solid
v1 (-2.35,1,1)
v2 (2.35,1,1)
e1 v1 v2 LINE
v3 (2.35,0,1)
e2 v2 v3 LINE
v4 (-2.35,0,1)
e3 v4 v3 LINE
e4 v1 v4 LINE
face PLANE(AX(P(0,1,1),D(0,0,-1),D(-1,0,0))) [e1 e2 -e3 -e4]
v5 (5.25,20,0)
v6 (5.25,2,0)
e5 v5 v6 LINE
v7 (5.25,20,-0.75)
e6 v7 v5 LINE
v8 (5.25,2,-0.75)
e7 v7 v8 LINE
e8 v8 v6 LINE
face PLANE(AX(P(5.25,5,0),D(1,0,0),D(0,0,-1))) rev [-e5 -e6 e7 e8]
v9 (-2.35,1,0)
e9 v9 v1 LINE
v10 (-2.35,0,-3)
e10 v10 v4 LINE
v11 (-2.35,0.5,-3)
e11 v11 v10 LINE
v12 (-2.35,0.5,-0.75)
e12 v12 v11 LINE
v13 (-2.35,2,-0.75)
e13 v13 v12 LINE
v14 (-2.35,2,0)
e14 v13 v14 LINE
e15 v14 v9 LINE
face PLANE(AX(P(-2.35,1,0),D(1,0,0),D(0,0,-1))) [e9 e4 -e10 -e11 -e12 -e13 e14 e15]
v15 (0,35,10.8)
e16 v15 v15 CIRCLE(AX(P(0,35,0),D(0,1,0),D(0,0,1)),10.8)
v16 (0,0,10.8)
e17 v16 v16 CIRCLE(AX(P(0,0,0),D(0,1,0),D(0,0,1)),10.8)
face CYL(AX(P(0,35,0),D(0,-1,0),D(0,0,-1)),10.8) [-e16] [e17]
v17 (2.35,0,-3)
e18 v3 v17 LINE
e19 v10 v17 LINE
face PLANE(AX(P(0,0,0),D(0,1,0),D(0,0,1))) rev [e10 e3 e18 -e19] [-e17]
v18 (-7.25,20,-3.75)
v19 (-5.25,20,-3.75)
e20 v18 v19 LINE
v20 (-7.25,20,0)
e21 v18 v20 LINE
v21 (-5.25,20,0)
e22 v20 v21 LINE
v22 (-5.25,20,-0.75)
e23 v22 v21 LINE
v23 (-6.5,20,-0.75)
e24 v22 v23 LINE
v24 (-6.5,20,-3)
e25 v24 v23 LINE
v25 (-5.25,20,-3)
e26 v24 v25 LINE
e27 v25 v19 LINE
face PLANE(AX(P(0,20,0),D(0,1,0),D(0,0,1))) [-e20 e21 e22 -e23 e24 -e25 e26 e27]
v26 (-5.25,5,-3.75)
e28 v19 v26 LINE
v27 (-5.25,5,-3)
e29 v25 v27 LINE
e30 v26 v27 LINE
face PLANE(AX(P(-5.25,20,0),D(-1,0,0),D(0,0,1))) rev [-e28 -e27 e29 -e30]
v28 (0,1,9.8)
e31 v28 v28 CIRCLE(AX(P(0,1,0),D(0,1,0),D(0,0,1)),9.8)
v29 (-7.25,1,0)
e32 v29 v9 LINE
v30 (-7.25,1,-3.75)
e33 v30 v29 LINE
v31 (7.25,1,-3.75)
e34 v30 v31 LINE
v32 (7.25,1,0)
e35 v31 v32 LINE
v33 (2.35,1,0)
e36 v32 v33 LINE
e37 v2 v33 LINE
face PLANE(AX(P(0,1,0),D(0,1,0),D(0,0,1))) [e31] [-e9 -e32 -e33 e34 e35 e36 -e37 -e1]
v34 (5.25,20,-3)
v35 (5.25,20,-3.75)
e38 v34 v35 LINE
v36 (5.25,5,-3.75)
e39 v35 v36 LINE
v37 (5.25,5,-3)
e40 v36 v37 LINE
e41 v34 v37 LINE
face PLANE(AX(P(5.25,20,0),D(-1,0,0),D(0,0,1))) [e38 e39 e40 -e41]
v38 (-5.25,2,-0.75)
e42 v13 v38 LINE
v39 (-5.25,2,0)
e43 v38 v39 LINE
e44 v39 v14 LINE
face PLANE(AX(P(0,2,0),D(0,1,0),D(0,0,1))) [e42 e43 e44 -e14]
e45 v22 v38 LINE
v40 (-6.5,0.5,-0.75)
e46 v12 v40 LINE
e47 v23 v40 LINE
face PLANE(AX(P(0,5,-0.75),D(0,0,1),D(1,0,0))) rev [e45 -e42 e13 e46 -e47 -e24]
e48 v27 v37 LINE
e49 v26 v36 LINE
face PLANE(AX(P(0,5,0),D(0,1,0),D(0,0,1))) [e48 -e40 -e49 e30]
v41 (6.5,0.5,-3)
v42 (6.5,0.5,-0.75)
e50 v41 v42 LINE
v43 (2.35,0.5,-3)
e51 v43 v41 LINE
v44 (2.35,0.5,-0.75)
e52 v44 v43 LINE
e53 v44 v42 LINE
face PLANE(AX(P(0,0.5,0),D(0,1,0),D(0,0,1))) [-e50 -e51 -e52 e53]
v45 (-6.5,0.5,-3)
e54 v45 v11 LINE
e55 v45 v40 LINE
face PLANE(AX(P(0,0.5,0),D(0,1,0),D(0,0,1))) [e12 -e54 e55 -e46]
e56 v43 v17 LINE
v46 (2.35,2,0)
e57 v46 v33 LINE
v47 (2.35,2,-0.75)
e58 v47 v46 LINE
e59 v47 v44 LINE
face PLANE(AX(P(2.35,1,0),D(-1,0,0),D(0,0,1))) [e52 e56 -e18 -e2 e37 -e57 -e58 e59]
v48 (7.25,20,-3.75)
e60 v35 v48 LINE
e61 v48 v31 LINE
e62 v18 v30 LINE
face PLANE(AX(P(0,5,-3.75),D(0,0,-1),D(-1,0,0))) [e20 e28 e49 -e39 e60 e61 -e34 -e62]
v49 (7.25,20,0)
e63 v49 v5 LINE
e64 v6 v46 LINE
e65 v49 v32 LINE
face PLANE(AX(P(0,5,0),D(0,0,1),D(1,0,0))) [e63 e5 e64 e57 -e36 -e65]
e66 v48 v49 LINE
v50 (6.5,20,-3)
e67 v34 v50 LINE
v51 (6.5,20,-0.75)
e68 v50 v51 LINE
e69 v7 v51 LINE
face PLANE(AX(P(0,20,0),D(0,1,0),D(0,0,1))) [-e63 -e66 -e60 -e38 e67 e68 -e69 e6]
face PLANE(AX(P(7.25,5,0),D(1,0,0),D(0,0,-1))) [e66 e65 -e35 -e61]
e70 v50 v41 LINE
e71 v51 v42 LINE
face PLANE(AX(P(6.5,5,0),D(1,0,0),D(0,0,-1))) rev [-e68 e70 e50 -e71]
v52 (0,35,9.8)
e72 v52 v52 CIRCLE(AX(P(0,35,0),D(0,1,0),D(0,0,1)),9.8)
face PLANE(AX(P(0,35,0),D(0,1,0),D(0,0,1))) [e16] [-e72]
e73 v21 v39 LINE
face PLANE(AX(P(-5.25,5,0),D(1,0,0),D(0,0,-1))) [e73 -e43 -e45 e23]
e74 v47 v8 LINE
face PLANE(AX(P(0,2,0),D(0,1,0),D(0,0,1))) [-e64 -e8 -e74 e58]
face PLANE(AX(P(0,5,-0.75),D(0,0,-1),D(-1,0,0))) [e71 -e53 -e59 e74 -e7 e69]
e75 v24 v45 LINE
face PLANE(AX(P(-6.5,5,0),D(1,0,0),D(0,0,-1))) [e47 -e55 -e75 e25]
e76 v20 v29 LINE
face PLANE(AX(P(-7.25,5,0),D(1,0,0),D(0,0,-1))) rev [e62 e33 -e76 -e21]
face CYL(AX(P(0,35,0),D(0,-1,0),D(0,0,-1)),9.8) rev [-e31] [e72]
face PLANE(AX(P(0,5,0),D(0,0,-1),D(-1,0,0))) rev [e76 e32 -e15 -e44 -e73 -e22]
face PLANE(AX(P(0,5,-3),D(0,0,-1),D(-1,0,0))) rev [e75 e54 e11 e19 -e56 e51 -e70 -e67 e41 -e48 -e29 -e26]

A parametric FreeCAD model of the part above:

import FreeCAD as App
import Part
import Sketcher

V = App.Vector

doc = App.newDocument("Part")
params = doc.addObject("Spreadsheet::Sheet", "Params")
for row, (alias, value) in enumerate([
    ("sketch1_diameter", "21.6 mm"),
    ("sketch1_diameter2", "19.6 mm"),
    ("pad1_length", "35 mm"),
    ("sketch2_diameter", "19.6 mm"),
    ("sketch2_height", "1 mm"),
    ("sketch2_width", "4.9 mm"),
    ("sketch2_width2", "14.5 mm"),
    ("sketch2_height2", "3.75 mm"),
    ("pad2_length", "1 mm"),
    ("sketch3_width", "13 mm"),
    ("sketch3_width2", "2 mm"),
    ("sketch3_width3", "14.5 mm"),
    ("sketch3_height", "0.75 mm"),
    ("pad3_length", "5 mm"),
    ("sketch4_width", "2.9 mm"),
    ("sketch4_height", "0.75 mm"),
    ("pad4_length", "2 mm"),
    ("sketch5_width", "4.15 mm"),
    ("sketch5_height", "2.25 mm"),
    ("pad5_length", "0.5 mm"),
    ("sketch6_width", "2 mm"),
    ("sketch6_width2", "1.25 mm"),
    ("sketch6_height", "0.75 mm"),
    ("pad6_length", "20 mm"),
], start=1):
    params.set(f"A{row}", alias)
    params.set(f"B{row}", "=" + value)
    params.setAlias(f"B{row}", alias)

body = doc.addObject("PartDesign::Body", "Body")

sketch1 = body.newObject("Sketcher::SketchObject", "Sketch")
sketch1.AttachmentSupport = (doc.getObject("XZ_Plane"), [""])
sketch1.MapMode = "FlatFace"
sketch1.addGeometry([
    Part.Circle(V(0, 0, 0), V(0, 0, 1), 11),
    Part.Circle(V(0, 0, 0), V(0, 0, 1), 10),
], False)
sketch1.addConstraint([
    Sketcher.Constraint("Coincident", 0, 3, -1, 1),
    Sketcher.Constraint("Coincident", 1, 3, -1, 1),
    Sketcher.Constraint("Diameter", 0, 21.6),
    Sketcher.Constraint("Diameter", 1, 19.6),
])
sketch1.setExpression("Constraints[2]", "Params.sketch1_diameter")
sketch1.setExpression("Constraints[3]", "Params.sketch1_diameter2")
pad1 = body.newObject("PartDesign::Pad", "Pad")
pad1.Profile = sketch1
pad1.setExpression("Length", "Params.pad1_length")
pad1.Reversed = True

sketch2 = body.newObject("Sketcher::SketchObject", "Sketch001")
sketch2.AttachmentSupport = (doc.getObject("XZ_Plane"), [""])
sketch2.MapMode = "FlatFace"
sketch2.addGeometry([
    Part.Circle(V(0, 0, 0), V(0, 0, 1), 9.8),
    Part.LineSegment(V(-2.4, 1, 0), V(-2.4, 0, 0)),
    Part.LineSegment(V(-2.4, 0, 0), V(-7.2, 0, 0)),
    Part.LineSegment(V(-7.2, 0, 0), V(-7.2, -3.8, 0)),
    Part.LineSegment(V(-7.2, -3.8, 0), V(7.2, -3.8, 0)),
    Part.LineSegment(V(7.2, -3.8, 0), V(7.2, 0, 0)),
    Part.LineSegment(V(7.2, 0, 0), V(2.4, 0, 0)),
    Part.LineSegment(V(2.4, 0, 0), V(2.4, 1, 0)),
    Part.LineSegment(V(2.4, 1, 0), V(-2.4, 1, 0)),
], False)
sketch2.addConstraint([
    Sketcher.Constraint("Coincident", 1, 2, 2, 1),
    Sketcher.Constraint("Coincident", 2, 2, 3, 1),
    Sketcher.Constraint("Coincident", 3, 2, 4, 1),
    Sketcher.Constraint("Coincident", 4, 2, 5, 1),
    Sketcher.Constraint("Coincident", 5, 2, 6, 1),
    Sketcher.Constraint("Coincident", 6, 2, 7, 1),
    Sketcher.Constraint("Coincident", 7, 2, 8, 1),
    Sketcher.Constraint("Coincident", 8, 2, 1, 1),
    Sketcher.Constraint("Vertical", 1),
    Sketcher.Constraint("Horizontal", 2),
    Sketcher.Constraint("Vertical", 3),
    Sketcher.Constraint("Horizontal", 4),
    Sketcher.Constraint("Vertical", 5),
    Sketcher.Constraint("Horizontal", 6),
    Sketcher.Constraint("Vertical", 7),
    Sketcher.Constraint("Horizontal", 8),
    Sketcher.Constraint("Coincident", 0, 3, -1, 1),
    Sketcher.Constraint("Symmetric", 2, 2, 5, 2, -1, 1),
    Sketcher.Constraint("Symmetric", 1, 2, 6, 2, -2),
    Sketcher.Constraint("Diameter", 0, 19.6),
    Sketcher.Constraint("DistanceY", 1, 2, 1, 1, 1.0),
    Sketcher.Constraint("DistanceX", 2, 2, 2, 1, 4.9),
    Sketcher.Constraint("DistanceX", 4, 1, 4, 2, 14.5),
    Sketcher.Constraint("DistanceY", 3, 2, 3, 1, 3.75),
])
sketch2.setExpression("Constraints[19]", "Params.sketch2_diameter")
sketch2.setExpression("Constraints[20]", "Params.sketch2_height")
sketch2.setExpression("Constraints[21]", "Params.sketch2_width")
sketch2.setExpression("Constraints[22]", "Params.sketch2_width2")
sketch2.setExpression("Constraints[23]", "Params.sketch2_height2")
pad2 = body.newObject("PartDesign::Pad", "Pad001")
pad2.Profile = sketch2
pad2.setExpression("Length", "Params.pad2_length")
pad2.Reversed = True

sketch3 = body.newObject("Sketcher::SketchObject", "Sketch002")
sketch3.AttachmentSupport = (doc.getObject("XZ_Plane"), [""])
sketch3.MapMode = "FlatFace"
sketch3.addGeometry([
    Part.LineSegment(V(-5.2, 0, 0), V(-5.2, -0.8, 0)),
    Part.LineSegment(V(-5.2, -0.8, 0), V(-6.5, -0.8, 0)),
    Part.LineSegment(V(-6.5, -0.8, 0), V(-6.5, -3, 0)),
    Part.LineSegment(V(-6.5, -3, 0), V(6.5, -3, 0)),
    Part.LineSegment(V(6.5, -3, 0), V(6.5, -0.8, 0)),
    Part.LineSegment(V(6.5, -0.8, 0), V(5.2, -0.8, 0)),
    Part.LineSegment(V(5.2, -0.8, 0), V(5.2, 0, 0)),
    Part.LineSegment(V(5.2, 0, 0), V(7.2, 0, 0)),
    Part.LineSegment(V(7.2, 0, 0), V(7.2, -3.8, 0)),
    Part.LineSegment(V(7.2, -3.8, 0), V(-7.2, -3.8, 0)),
    Part.LineSegment(V(-7.2, -3.8, 0), V(-7.2, 0, 0)),
    Part.LineSegment(V(-7.2, 0, 0), V(-5.2, 0, 0)),
], False)
sketch3.addConstraint([
    Sketcher.Constraint("Coincident", 0, 2, 1, 1),
    Sketcher.Constraint("Coincident", 1, 2, 2, 1),
    Sketcher.Constraint("Coincident", 2, 2, 3, 1),
    Sketcher.Constraint("Coincident", 3, 2, 4, 1),
    Sketcher.Constraint("Coincident", 4, 2, 5, 1),
    Sketcher.Constraint("Coincident", 5, 2, 6, 1),
    Sketcher.Constraint("Coincident", 6, 2, 7, 1),
    Sketcher.Constraint("Coincident", 7, 2, 8, 1),
    Sketcher.Constraint("Coincident", 8, 2, 9, 1),
    Sketcher.Constraint("Coincident", 9, 2, 10, 1),
    Sketcher.Constraint("Coincident", 10, 2, 11, 1),
    Sketcher.Constraint("Coincident", 11, 2, 0, 1),
    Sketcher.Constraint("Vertical", 0),
    Sketcher.Constraint("Horizontal", 1),
    Sketcher.Constraint("Vertical", 2),
    Sketcher.Constraint("Horizontal", 3),
    Sketcher.Constraint("Vertical", 4),
    Sketcher.Constraint("Horizontal", 5),
    Sketcher.Constraint("Vertical", 6),
    Sketcher.Constraint("Horizontal", 7),
    Sketcher.Constraint("Vertical", 8),
    Sketcher.Constraint("Horizontal", 9),
    Sketcher.Constraint("Vertical", 10),
    Sketcher.Constraint("Horizontal", 11),
    Sketcher.Constraint("Symmetric", 7, 2, 10, 2, -1, 1),
    Sketcher.Constraint("Symmetric", 1, 2, 4, 2, -2),
    Sketcher.Constraint("Symmetric", 6, 2, 11, 2, -2),
    Sketcher.Constraint("DistanceX", 3, 1, 3, 2, 13.0),
    Sketcher.Constraint("DistanceX", 7, 1, 7, 2, 2.0),
    Sketcher.Constraint("DistanceX", 9, 2, 9, 1, 14.5),
    Sketcher.Constraint("DistanceY", 2, 2, -1, 1, 3.0),
    Sketcher.Constraint("DistanceY", 8, 2, 4, 2, 3.0),
    Sketcher.Constraint("DistanceY", 0, 2, 0, 1, 0.75),
])
sketch3.setExpression("Constraints[27]", "Params.sketch3_width")
sketch3.setExpression("Constraints[28]", "Params.sketch3_width2")
sketch3.setExpression("Constraints[29]", "Params.sketch3_width3")
sketch3.setExpression("Constraints[32]", "Params.sketch3_height")
pad3 = body.newObject("PartDesign::Pad", "Pad002")
pad3.Profile = sketch3
pad3.setExpression("Length", "Params.pad3_length")
pad3.Reversed = True

sketch4 = body.newObject("Sketcher::SketchObject", "Sketch003")
sketch4.AttachmentSupport = (doc.getObject("XZ_Plane"), [""])
sketch4.MapMode = "FlatFace"
sketch4.addGeometry([
    Part.LineSegment(V(-5.2, -0.8, 0), V(-5.2, 0, 0)),
    Part.LineSegment(V(-5.2, 0, 0), V(-2.4, 0, 0)),
    Part.LineSegment(V(-2.4, 0, 0), V(-2.4, -0.8, 0)),
    Part.LineSegment(V(-2.4, -0.8, 0), V(-5.2, -0.8, 0)),
    Part.LineSegment(V(2.4, -0.8, 0), V(2.4, 0, 0)),
    Part.LineSegment(V(2.4, 0, 0), V(5.2, 0, 0)),
    Part.LineSegment(V(5.2, 0, 0), V(5.2, -0.8, 0)),
    Part.LineSegment(V(5.2, -0.8, 0), V(2.4, -0.8, 0)),
], False)
sketch4.addConstraint([
    Sketcher.Constraint("Coincident", 0, 2, 1, 1),
    Sketcher.Constraint("Coincident", 1, 2, 2, 1),
    Sketcher.Constraint("Coincident", 2, 2, 3, 1),
    Sketcher.Constraint("Coincident", 3, 2, 0, 1),
    Sketcher.Constraint("Coincident", 4, 2, 5, 1),
    Sketcher.Constraint("Coincident", 5, 2, 6, 1),
    Sketcher.Constraint("Coincident", 6, 2, 7, 1),
    Sketcher.Constraint("Coincident", 7, 2, 4, 1),
    Sketcher.Constraint("Vertical", 0),
    Sketcher.Constraint("Horizontal", 1),
    Sketcher.Constraint("Vertical", 2),
    Sketcher.Constraint("Horizontal", 3),
    Sketcher.Constraint("Vertical", 4),
    Sketcher.Constraint("Horizontal", 5),
    Sketcher.Constraint("Vertical", 6),
    Sketcher.Constraint("Horizontal", 7),
    Sketcher.Constraint("Symmetric", 1, 2, 4, 2, -1, 1),
    Sketcher.Constraint("Symmetric", 0, 2, 5, 2, -2),
    Sketcher.Constraint("Horizontal", 3, 2, 6, 2),
    Sketcher.Constraint("DistanceX", 1, 1, 1, 2, 2.9),
    Sketcher.Constraint("DistanceY", 0, 1, 0, 2, 0.75),
    Sketcher.Constraint("DistanceX", 1, 2, 4, 2, 4.7),
])
sketch4.setExpression("Constraints[19]", "Params.sketch4_width")
sketch4.setExpression("Constraints[20]", "Params.sketch4_height")
pad4 = body.newObject("PartDesign::Pad", "Pad003")
pad4.Profile = sketch4
pad4.setExpression("Length", "Params.pad4_length")
pad4.Reversed = True

sketch5 = body.newObject("Sketcher::SketchObject", "Sketch004")
sketch5.AttachmentSupport = (doc.getObject("XZ_Plane"), [""])
sketch5.MapMode = "FlatFace"
sketch5.addGeometry([
    Part.LineSegment(V(-6.5, -0.8, 0), V(-2.4, -0.8, 0)),
    Part.LineSegment(V(-2.4, -0.8, 0), V(-2.4, -3, 0)),
    Part.LineSegment(V(-2.4, -3, 0), V(-6.5, -3, 0)),
    Part.LineSegment(V(-6.5, -3, 0), V(-6.5, -0.8, 0)),
    Part.LineSegment(V(2.4, -3, 0), V(2.4, -0.8, 0)),
    Part.LineSegment(V(2.4, -0.8, 0), V(6.5, -0.8, 0)),
    Part.LineSegment(V(6.5, -0.8, 0), V(6.5, -3, 0)),
    Part.LineSegment(V(6.5, -3, 0), V(2.4, -3, 0)),
], False)
sketch5.addConstraint([
    Sketcher.Constraint("Coincident", 0, 2, 1, 1),
    Sketcher.Constraint("Coincident", 1, 2, 2, 1),
    Sketcher.Constraint("Coincident", 2, 2, 3, 1),
    Sketcher.Constraint("Coincident", 3, 2, 0, 1),
    Sketcher.Constraint("Coincident", 4, 2, 5, 1),
    Sketcher.Constraint("Coincident", 5, 2, 6, 1),
    Sketcher.Constraint("Coincident", 6, 2, 7, 1),
    Sketcher.Constraint("Coincident", 7, 2, 4, 1),
    Sketcher.Constraint("Horizontal", 0),
    Sketcher.Constraint("Vertical", 1),
    Sketcher.Constraint("Horizontal", 2),
    Sketcher.Constraint("Vertical", 3),
    Sketcher.Constraint("Vertical", 4),
    Sketcher.Constraint("Horizontal", 5),
    Sketcher.Constraint("Vertical", 6),
    Sketcher.Constraint("Horizontal", 7),
    Sketcher.Constraint("Symmetric", 0, 2, 4, 2, -2),
    Sketcher.Constraint("Symmetric", 2, 2, 6, 2, -2),
    Sketcher.Constraint("DistanceY", 1, 2, -1, 1, 3.0),
    Sketcher.Constraint("DistanceX", 3, 2, 5, 2, 13.0),
    Sketcher.Constraint("DistanceX", 0, 1, 0, 2, 4.15),
    Sketcher.Constraint("DistanceY", 1, 2, 1, 1, 2.25),
])
sketch5.setExpression("Constraints[20]", "Params.sketch5_width")
sketch5.setExpression("Constraints[21]", "Params.sketch5_height")
pad5 = body.newObject("PartDesign::Pad", "Pad004")
pad5.Profile = sketch5
pad5.setExpression("Length", "Params.pad5_length")
pad5.Reversed = True

sketch6 = body.newObject("Sketcher::SketchObject", "Sketch005")
sketch6.AttachmentSupport = (doc.getObject("XZ_Plane"), [""])
sketch6.MapMode = "FlatFace"
sketch6.addGeometry([
    Part.LineSegment(V(-5.2, 0, 0), V(-5.2, -0.8, 0)),
    Part.LineSegment(V(-5.2, -0.8, 0), V(-6.5, -0.8, 0)),
    Part.LineSegment(V(-6.5, -0.8, 0), V(-6.5, -3, 0)),
    Part.LineSegment(V(-6.5, -3, 0), V(-5.2, -3, 0)),
    Part.LineSegment(V(-5.2, -3, 0), V(-5.2, -3.8, 0)),
    Part.LineSegment(V(-5.2, -3.8, 0), V(-7.2, -3.8, 0)),
    Part.LineSegment(V(-7.2, -3.8, 0), V(-7.2, 0, 0)),
    Part.LineSegment(V(-7.2, 0, 0), V(-5.2, 0, 0)),
    Part.LineSegment(V(5.2, -3.8, 0), V(5.2, -3, 0)),
    Part.LineSegment(V(5.2, -3, 0), V(6.5, -3, 0)),
    Part.LineSegment(V(6.5, -3, 0), V(6.5, -0.8, 0)),
    Part.LineSegment(V(6.5, -0.8, 0), V(5.2, -0.8, 0)),
    Part.LineSegment(V(5.2, -0.8, 0), V(5.2, 0, 0)),
    Part.LineSegment(V(5.2, 0, 0), V(7.2, 0, 0)),
    Part.LineSegment(V(7.2, 0, 0), V(7.2, -3.8, 0)),
    Part.LineSegment(V(7.2, -3.8, 0), V(5.2, -3.8, 0)),
], False)
sketch6.addConstraint([
    Sketcher.Constraint("Coincident", 0, 2, 1, 1),
    Sketcher.Constraint("Coincident", 1, 2, 2, 1),
    Sketcher.Constraint("Coincident", 2, 2, 3, 1),
    Sketcher.Constraint("Coincident", 3, 2, 4, 1),
    Sketcher.Constraint("Coincident", 4, 2, 5, 1),
    Sketcher.Constraint("Coincident", 5, 2, 6, 1),
    Sketcher.Constraint("Coincident", 6, 2, 7, 1),
    Sketcher.Constraint("Coincident", 7, 2, 0, 1),
    Sketcher.Constraint("Coincident", 8, 2, 9, 1),
    Sketcher.Constraint("Coincident", 9, 2, 10, 1),
    Sketcher.Constraint("Coincident", 10, 2, 11, 1),
    Sketcher.Constraint("Coincident", 11, 2, 12, 1),
    Sketcher.Constraint("Coincident", 12, 2, 13, 1),
    Sketcher.Constraint("Coincident", 13, 2, 14, 1),
    Sketcher.Constraint("Coincident", 14, 2, 15, 1),
    Sketcher.Constraint("Coincident", 15, 2, 8, 1),
    Sketcher.Constraint("Vertical", 0),
    Sketcher.Constraint("Horizontal", 1),
    Sketcher.Constraint("Vertical", 2),
    Sketcher.Constraint("Horizontal", 3),
    Sketcher.Constraint("Vertical", 4),
    Sketcher.Constraint("Horizontal", 5),
    Sketcher.Constraint("Vertical", 6),
    Sketcher.Constraint("Horizontal", 7),
    Sketcher.Constraint("Vertical", 8),
    Sketcher.Constraint("Horizontal", 9),
    Sketcher.Constraint("Vertical", 10),
    Sketcher.Constraint("Horizontal", 11),
    Sketcher.Constraint("Vertical", 12),
    Sketcher.Constraint("Horizontal", 13),
    Sketcher.Constraint("Vertical", 14),
    Sketcher.Constraint("Horizontal", 15),
    Sketcher.Constraint("Symmetric", 7, 2, 12, 2, -1, 1),
    Sketcher.Constraint("Symmetric", 3, 2, 8, 2, -2),
    Sketcher.Constraint("Symmetric", 1, 2, 10, 2, -2),
    Sketcher.Constraint("Symmetric", 6, 2, 13, 2, -2),
    Sketcher.Constraint("Horizontal", 5, 2, 14, 2),
    Sketcher.Constraint("Vertical", 0, 2, 3, 2),
    Sketcher.Constraint("Equal", 0, 4),
    Sketcher.Constraint("DistanceX", 5, 2, 5, 1, 2.0),
    Sketcher.Constraint("DistanceY", 2, 2, -1, 1, 3.0),
    Sketcher.Constraint("DistanceX", 1, 2, 1, 1, 1.25),
    Sketcher.Constraint("DistanceY", 0, 2, 0, 1, 0.75),
    Sketcher.Constraint("DistanceX", 1, 2, -1, 1, 6.5),
])
sketch6.setExpression("Constraints[39]", "Params.sketch6_width")
sketch6.setExpression("Constraints[41]", "Params.sketch6_width2")
sketch6.setExpression("Constraints[42]", "Params.sketch6_height")
pad6 = body.newObject("PartDesign::Pad", "Pad005")
pad6.Profile = sketch6
pad6.setExpression("Length", "Params.pad6_length")
pad6.Reversed = True

doc.recompute()
